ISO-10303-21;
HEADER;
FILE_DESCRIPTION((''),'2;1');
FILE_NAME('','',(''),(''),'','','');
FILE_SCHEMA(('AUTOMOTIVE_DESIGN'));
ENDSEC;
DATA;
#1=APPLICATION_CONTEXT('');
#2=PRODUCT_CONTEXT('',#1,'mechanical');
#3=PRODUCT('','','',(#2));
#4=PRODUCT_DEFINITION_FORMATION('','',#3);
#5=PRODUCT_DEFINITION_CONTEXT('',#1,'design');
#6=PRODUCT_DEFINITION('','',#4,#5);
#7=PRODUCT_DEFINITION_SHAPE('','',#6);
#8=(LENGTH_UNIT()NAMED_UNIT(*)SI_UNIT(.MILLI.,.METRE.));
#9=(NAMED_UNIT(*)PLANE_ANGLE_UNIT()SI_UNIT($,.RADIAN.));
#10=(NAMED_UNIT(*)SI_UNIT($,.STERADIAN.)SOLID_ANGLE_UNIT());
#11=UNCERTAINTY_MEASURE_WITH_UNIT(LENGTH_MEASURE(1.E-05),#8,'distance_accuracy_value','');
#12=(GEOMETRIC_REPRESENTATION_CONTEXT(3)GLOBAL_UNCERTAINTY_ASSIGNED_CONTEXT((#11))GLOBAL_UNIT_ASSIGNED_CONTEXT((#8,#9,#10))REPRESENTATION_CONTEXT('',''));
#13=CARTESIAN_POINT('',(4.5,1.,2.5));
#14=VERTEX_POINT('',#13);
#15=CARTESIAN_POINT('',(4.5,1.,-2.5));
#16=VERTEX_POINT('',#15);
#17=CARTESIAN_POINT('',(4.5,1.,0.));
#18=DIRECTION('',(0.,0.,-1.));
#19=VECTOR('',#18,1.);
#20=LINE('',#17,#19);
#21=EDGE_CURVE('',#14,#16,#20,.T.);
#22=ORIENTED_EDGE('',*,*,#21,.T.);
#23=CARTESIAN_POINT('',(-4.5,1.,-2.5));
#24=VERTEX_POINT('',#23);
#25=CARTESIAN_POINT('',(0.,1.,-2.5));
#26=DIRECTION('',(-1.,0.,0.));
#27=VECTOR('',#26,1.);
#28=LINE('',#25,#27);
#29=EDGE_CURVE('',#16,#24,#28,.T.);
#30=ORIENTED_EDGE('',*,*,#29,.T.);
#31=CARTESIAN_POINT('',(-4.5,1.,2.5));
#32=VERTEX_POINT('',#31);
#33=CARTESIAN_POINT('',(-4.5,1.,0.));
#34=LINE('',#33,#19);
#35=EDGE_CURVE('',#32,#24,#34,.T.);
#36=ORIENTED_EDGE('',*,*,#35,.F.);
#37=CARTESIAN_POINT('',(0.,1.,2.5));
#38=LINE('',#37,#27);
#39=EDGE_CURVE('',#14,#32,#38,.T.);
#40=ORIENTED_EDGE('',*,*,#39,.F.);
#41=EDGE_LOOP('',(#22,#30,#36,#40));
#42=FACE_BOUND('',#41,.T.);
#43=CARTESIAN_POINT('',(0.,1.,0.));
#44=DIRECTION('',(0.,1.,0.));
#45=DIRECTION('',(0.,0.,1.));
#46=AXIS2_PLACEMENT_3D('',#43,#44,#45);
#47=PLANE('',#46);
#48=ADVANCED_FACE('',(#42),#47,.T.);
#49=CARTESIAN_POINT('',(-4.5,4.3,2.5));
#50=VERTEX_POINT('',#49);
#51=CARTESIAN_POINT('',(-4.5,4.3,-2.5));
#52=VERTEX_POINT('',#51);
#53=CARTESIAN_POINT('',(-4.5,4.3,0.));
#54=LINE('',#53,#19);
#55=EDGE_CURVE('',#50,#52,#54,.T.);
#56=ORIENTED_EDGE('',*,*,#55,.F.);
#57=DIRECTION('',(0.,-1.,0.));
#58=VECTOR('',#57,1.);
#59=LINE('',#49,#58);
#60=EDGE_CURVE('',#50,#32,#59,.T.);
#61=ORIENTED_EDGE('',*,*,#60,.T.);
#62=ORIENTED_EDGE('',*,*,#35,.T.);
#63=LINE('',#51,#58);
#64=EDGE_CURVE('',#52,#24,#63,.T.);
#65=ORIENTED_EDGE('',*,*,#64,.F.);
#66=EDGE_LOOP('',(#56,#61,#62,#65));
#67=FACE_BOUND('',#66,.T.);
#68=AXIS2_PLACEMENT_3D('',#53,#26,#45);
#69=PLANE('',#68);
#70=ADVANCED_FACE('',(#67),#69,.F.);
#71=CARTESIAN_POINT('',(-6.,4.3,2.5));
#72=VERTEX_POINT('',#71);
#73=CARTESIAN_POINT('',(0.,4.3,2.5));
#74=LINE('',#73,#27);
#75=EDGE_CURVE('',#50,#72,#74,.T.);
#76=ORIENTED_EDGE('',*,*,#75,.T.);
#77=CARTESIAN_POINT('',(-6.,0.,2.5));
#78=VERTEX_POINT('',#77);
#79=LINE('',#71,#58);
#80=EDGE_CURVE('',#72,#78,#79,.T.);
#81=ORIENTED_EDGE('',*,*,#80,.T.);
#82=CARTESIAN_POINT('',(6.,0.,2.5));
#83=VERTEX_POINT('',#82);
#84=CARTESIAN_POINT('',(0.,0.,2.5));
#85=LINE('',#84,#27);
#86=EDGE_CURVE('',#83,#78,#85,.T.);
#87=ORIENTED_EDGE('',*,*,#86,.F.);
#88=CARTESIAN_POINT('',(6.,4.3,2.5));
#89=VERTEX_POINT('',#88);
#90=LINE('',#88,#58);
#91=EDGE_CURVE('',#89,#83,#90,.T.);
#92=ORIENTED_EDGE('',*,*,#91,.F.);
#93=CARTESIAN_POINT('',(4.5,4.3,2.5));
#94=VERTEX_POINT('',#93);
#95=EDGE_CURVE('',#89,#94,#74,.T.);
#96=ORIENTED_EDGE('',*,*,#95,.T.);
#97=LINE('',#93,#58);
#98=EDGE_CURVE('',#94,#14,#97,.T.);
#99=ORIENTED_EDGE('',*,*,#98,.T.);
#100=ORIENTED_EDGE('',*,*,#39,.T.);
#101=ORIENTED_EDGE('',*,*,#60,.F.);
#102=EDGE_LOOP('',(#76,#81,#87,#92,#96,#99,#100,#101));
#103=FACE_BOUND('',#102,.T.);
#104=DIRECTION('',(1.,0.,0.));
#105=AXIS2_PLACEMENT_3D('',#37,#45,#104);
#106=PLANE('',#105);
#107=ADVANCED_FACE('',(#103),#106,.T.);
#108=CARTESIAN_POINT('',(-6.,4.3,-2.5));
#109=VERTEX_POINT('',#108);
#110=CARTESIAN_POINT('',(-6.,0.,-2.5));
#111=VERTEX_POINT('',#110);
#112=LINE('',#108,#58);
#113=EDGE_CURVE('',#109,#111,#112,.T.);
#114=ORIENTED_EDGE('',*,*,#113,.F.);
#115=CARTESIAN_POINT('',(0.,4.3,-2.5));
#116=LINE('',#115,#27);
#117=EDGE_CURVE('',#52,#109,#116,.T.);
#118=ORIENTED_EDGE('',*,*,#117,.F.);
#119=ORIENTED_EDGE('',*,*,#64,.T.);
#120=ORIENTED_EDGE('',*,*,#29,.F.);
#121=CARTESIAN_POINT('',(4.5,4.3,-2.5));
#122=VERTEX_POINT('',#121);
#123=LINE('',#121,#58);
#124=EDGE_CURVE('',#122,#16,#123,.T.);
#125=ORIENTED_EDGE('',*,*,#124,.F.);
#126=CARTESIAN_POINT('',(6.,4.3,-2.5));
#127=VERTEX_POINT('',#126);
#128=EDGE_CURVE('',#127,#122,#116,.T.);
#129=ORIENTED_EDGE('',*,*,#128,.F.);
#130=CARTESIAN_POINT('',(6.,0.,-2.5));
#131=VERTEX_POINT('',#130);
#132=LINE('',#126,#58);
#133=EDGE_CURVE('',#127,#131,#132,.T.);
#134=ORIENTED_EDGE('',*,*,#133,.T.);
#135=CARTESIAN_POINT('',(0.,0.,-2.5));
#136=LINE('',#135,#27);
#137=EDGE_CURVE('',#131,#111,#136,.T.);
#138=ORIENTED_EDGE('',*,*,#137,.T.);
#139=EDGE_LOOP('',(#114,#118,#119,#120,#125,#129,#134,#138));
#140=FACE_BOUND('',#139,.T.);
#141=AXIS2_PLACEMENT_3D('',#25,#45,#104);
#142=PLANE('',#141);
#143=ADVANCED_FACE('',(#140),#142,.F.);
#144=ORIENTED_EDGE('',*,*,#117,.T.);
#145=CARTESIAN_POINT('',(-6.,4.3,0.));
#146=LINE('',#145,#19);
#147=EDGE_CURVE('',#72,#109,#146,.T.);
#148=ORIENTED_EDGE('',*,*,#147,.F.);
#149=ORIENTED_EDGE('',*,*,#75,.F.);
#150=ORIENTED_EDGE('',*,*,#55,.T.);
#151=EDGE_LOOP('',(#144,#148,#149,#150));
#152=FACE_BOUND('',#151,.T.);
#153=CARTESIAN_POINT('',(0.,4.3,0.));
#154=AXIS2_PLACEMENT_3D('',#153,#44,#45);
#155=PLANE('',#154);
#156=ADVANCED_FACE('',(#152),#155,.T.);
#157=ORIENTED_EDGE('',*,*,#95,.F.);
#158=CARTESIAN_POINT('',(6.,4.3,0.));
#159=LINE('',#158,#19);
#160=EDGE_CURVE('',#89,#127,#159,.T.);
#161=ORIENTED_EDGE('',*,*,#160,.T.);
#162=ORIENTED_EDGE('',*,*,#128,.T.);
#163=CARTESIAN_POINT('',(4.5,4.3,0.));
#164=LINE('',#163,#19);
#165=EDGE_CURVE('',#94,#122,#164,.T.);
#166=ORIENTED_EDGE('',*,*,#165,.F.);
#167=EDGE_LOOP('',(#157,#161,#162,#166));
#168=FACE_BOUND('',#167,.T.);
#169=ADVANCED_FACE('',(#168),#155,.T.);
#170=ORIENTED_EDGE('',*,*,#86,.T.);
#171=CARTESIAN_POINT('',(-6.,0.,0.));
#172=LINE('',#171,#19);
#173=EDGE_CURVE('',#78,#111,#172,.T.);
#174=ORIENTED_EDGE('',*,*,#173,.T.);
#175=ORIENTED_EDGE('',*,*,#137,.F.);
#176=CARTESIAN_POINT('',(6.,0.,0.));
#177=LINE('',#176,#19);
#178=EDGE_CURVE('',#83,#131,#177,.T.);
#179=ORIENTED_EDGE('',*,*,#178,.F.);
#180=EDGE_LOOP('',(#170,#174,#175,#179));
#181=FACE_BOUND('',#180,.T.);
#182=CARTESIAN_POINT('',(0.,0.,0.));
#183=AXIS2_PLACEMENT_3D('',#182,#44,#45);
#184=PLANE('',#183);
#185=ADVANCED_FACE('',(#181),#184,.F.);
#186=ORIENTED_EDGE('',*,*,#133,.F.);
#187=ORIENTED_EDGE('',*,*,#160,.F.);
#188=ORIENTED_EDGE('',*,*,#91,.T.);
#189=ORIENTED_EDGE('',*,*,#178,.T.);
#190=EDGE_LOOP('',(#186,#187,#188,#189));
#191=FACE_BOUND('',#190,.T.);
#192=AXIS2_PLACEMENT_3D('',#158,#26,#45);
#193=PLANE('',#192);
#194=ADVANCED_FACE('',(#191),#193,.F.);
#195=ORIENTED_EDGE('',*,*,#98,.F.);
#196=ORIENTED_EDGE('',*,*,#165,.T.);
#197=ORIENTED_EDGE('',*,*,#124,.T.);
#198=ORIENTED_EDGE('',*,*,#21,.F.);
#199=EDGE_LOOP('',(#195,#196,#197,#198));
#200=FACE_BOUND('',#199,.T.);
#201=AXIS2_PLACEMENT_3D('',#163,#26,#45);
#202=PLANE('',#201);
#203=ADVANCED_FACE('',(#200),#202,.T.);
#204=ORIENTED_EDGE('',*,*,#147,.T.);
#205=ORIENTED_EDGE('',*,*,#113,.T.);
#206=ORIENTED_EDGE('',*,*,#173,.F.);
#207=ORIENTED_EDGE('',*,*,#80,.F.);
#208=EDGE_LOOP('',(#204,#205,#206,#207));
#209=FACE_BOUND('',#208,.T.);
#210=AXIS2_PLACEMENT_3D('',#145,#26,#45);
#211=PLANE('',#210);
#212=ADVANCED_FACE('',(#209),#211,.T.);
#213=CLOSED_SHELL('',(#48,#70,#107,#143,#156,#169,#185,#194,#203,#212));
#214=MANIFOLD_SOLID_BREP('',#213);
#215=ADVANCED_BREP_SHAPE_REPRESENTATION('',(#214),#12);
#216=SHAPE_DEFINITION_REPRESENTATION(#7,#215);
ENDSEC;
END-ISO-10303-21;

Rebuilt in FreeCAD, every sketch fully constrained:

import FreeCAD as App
import Part
import Sketcher

V = App.Vector
Q = App.Units.Quantity

doc = App.newDocument("Part")
body = doc.addObject("PartDesign::Body", "Body")

# Sketch on XZ plane
sketch1 = body.newObject("Sketcher::SketchObject", "Sketch")
sketch1.AttachmentSupport = (doc.getObject("XZ_Plane"), [""])
sketch1.MapMode = "FlatFace"
sketch1.addGeometry(Part.LineSegment(V(-4.5, -2.5, 0), V(-4.5, 2.5, 0)), False)
sketch1.addGeometry(Part.LineSegment(V(-4.5, 2.5, 0), V(4.5, 2.5, 0)), False)
sketch1.addGeometry(Part.LineSegment(V(4.5, 2.5, 0), V(4.5, -2.5, 0)), False)
sketch1.addGeometry(Part.LineSegment(V(4.5, -2.5, 0), V(-4.5, -2.5, 0)), False)
sketch1.addConstraint(Sketcher.Constraint("Coincident", 0, 2, 1, 1))
sketch1.addConstraint(Sketcher.Constraint("Coincident", 1, 2, 2, 1))
sketch1.addConstraint(Sketcher.Constraint("Coincident", 2, 2, 3, 1))
sketch1.addConstraint(Sketcher.Constraint("Coincident", 3, 2, 0, 1))
sketch1.addConstraint(Sketcher.Constraint("Vertical", 0))
sketch1.addConstraint(Sketcher.Constraint("Horizontal", 1))
sketch1.addConstraint(Sketcher.Constraint("Vertical", 2))
sketch1.addConstraint(Sketcher.Constraint("Horizontal", 3))
sketch1.addConstraint(Sketcher.Constraint("Symmetric", 0, 2, 2, 2, -1, 1))
sketch1.addConstraint(Sketcher.Constraint("DistanceX", 1, 1, 1, 2, Q("9 mm")))
sketch1.addConstraint(Sketcher.Constraint("DistanceY", 0, 1, 0, 2, Q("5 mm")))
pad1 = body.newObject("PartDesign::Pad", "Pad")
pad1.Profile = sketch1
pad1.Length = 1
pad1.Reversed = True

# Sketch on XZ plane
sketch2 = body.newObject("Sketcher::SketchObject", "Sketch001")
sketch2.AttachmentSupport = (doc.getObject("XZ_Plane"), [""])
sketch2.MapMode = "FlatFace"
sketch2.addGeometry(Part.LineSegment(V(4.5, -2.5, 0), V(4.5, 2.5, 0)), False)
sketch2.addGeometry(Part.LineSegment(V(4.5, 2.5, 0), V(6, 2.5, 0)), False)
sketch2.addGeometry(Part.LineSegment(V(6, 2.5, 0), V(6, -2.5, 0)), False)
sketch2.addGeometry(Part.LineSegment(V(6, -2.5, 0), V(4.5, -2.5, 0)), False)
sketch2.addGeometry(Part.LineSegment(V(-6, -2.5, 0), V(-6, 2.5, 0)), False)
sketch2.addGeometry(Part.LineSegment(V(-6, 2.5, 0), V(-4.5, 2.5, 0)), False)
sketch2.addGeometry(Part.LineSegment(V(-4.5, 2.5, 0), V(-4.5, -2.5, 0)), False)
sketch2.addGeometry(Part.LineSegment(V(-4.5, -2.5, 0), V(-6, -2.5, 0)), False)
sketch2.addConstraint(Sketcher.Constraint("Coincident", 0, 2, 1, 1))
sketch2.addConstraint(Sketcher.Constraint("Coincident", 1, 2, 2, 1))
sketch2.addConstraint(Sketcher.Constraint("Coincident", 2, 2, 3, 1))
sketch2.addConstraint(Sketcher.Constraint("Coincident", 3, 2, 0, 1))
sketch2.addConstraint(Sketcher.Constraint("Coincident", 4, 2, 5, 1))
sketch2.addConstraint(Sketcher.Constraint("Coincident", 5, 2, 6, 1))
sketch2.addConstraint(Sketcher.Constraint("Coincident", 6, 2, 7, 1))
sketch2.addConstraint(Sketcher.Constraint("Coincident", 7, 2, 4, 1))
sketch2.addConstraint(Sketcher.Constraint("Vertical", 0))
sketch2.addConstraint(Sketcher.Constraint("Horizontal", 1))
sketch2.addConstraint(Sketcher.Constraint("Vertical", 2))
sketch2.addConstraint(Sketcher.Constraint("Horizontal", 3))
sketch2.addConstraint(Sketcher.Constraint("Vertical", 4))
sketch2.addConstraint(Sketcher.Constraint("Horizontal", 5))
sketch2.addConstraint(Sketcher.Constraint("Vertical", 6))
sketch2.addConstraint(Sketcher.Constraint("Horizontal", 7))
sketch2.addConstraint(Sketcher.Constraint("Symmetric", 2, 2, 4, 2, -1, 1))
sketch2.addConstraint(Sketcher.Constraint("Symmetric", 0, 2, 6, 2, -1, 1))
sketch2.addConstraint(Sketcher.Constraint("Horizontal", 1, 2, 4, 2))
sketch2.addConstraint(Sketcher.Constraint("DistanceY", 0, 1, 0, 2, Q("5 mm")))
sketch2.addConstraint(Sketcher.Constraint("DistanceX", 1, 1, 1, 2, Q("1.5 mm")))
sketch2.addConstraint(Sketcher.Constraint("DistanceX", -1, 1, 1, 2, Q("6 mm")))
pad2 = body.newObject("PartDesign::Pad", "Pad001")
pad2.Profile = sketch2
pad2.Length = 4.3
pad2.Reversed = True

doc.recompute()
